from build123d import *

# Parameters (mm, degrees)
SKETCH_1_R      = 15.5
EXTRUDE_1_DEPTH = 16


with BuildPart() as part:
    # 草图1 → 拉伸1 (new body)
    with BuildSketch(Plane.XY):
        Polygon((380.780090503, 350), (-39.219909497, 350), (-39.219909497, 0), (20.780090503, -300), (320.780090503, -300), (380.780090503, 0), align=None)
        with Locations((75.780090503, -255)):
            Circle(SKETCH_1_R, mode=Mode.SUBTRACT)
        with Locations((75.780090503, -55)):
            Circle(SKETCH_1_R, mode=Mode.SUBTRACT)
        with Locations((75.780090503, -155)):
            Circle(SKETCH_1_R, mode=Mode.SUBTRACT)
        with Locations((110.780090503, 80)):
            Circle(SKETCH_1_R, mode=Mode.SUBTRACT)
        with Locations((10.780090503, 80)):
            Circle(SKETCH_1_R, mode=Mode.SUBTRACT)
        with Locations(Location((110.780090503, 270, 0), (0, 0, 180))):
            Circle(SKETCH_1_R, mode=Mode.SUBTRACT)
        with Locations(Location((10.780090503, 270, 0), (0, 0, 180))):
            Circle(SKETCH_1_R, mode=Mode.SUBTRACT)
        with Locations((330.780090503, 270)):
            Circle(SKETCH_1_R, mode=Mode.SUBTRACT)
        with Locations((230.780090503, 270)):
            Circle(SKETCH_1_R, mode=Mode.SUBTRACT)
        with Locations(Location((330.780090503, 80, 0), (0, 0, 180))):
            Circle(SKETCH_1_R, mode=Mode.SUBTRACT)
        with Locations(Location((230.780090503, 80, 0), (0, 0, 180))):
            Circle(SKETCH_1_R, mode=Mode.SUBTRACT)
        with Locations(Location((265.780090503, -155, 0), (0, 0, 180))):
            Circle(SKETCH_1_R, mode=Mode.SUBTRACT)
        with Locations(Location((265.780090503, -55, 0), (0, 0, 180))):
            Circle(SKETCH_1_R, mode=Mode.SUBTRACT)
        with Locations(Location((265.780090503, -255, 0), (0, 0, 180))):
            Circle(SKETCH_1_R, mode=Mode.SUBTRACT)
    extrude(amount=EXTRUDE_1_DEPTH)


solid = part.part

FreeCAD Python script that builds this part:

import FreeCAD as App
import Part
import Sketcher
from FreeCAD import Vector
Q = App.Units.Quantity

doc = App.newDocument("Part")
body = doc.addObject("PartDesign::Body", "Body")

sketch1 = body.newObject("Sketcher::SketchObject", "Sketch")
sketch1.AttachmentSupport = (doc.getObject("XY_Plane"), [""])
sketch1.MapMode = "FlatFace"
sketch1.addGeometry([
    Part.LineSegment(Vector(381, 350, 0), Vector(-39, 350, 0)),
    Part.LineSegment(Vector(-39, 350, 0), Vector(-39, 0, 0)),
    Part.LineSegment(Vector(-39, 0, 0), Vector(21, -300, 0)),
    Part.LineSegment(Vector(21, -300, 0), Vector(321, -300, 0)),
    Part.LineSegment(Vector(321, -300, 0), Vector(381, 0, 0)),
    Part.LineSegment(Vector(381, 0, 0), Vector(381, 350, 0)),
    Part.Circle(Vector(76, -255, 0), Vector(0, 0, 1), 16),
    Part.Circle(Vector(76, -155, 0), Vector(0, 0, 1), 16),
    Part.Circle(Vector(76, -55, 0), Vector(0, 0, 1), 16),
    Part.Circle(Vector(266, -255, 0), Vector(0, 0, 1), 16),
    Part.Circle(Vector(266, -155, 0), Vector(0, 0, 1), 16),
    Part.Circle(Vector(266, -55, 0), Vector(0, 0, 1), 16),
    Part.Circle(Vector(11, 80, 0), Vector(0, 0, 1), 16),
    Part.Circle(Vector(111, 80, 0), Vector(0, 0, 1), 16),
    Part.Circle(Vector(11, 270, 0), Vector(0, 0, 1), 16),
    Part.Circle(Vector(111, 270, 0), Vector(0, 0, 1), 16),
    Part.Circle(Vector(231, 80, 0), Vector(0, 0, 1), 16),
    Part.Circle(Vector(331, 80, 0), Vector(0, 0, 1), 16),
    Part.Circle(Vector(231, 270, 0), Vector(0, 0, 1), 16),
    Part.Circle(Vector(331, 270, 0), Vector(0, 0, 1), 16),
], False)
sketch1.addConstraint([
    Sketcher.Constraint("Coincident", 0, 2, 1, 1),
    Sketcher.Constraint("Coincident", 1, 2, 2, 1),
    Sketcher.Constraint("Coincident", 2, 2, 3, 1),
    Sketcher.Constraint("Coincident", 3, 2, 4, 1),
    Sketcher.Constraint("Coincident", 4, 2, 5, 1),
    Sketcher.Constraint("Coincident", 5, 2, 0, 1),
    Sketcher.Constraint("Horizontal", 0),
    Sketcher.Constraint("Vertical", 1),
    Sketcher.Constraint("Horizontal", 3),
    Sketcher.Constraint("Vertical", 5),
    Sketcher.Constraint("Equal", 6, 7),
    Sketcher.Constraint("Equal", 7, 8),
    Sketcher.Constraint("Equal", 8, 9),
    Sketcher.Constraint("Equal", 9, 10),
    Sketcher.Constraint("Equal", 10, 11),
    Sketcher.Constraint("Equal", 11, 12),
    Sketcher.Constraint("Equal", 12, 13),
    Sketcher.Constraint("Equal", 13, 14),
    Sketcher.Constraint("Equal", 14, 15),
    Sketcher.Constraint("Equal", 15, 16),
    Sketcher.Constraint("Equal", 16, 17),
    Sketcher.Constraint("Equal", 17, 18),
    Sketcher.Constraint("Equal", 18, 19),
    Sketcher.Constraint("PointOnObject", 1, 2, -1),
    Sketcher.Constraint("PointOnObject", 4, 2, -1),
    Sketcher.Constraint("Horizontal", 6, 3, 9, 3),
    Sketcher.Constraint("Horizontal", 7, 3, 10, 3),
    Sketcher.Constraint("Horizontal", 8, 3, 11, 3),
    Sketcher.Constraint("Horizontal", 12, 3, 13, 3),
    Sketcher.Constraint("Horizontal", 14, 3, 15, 3),
    Sketcher.Constraint("Horizontal", 13, 3, 16, 3),
    Sketcher.Constraint("Horizontal", 16, 3, 17, 3),
    Sketcher.Constraint("Horizontal", 15, 3, 18, 3),
    Sketcher.Constraint("Horizontal", 18, 3, 19, 3),
    Sketcher.Constraint("Vertical", 6, 3, 7, 3),
    Sketcher.Constraint("Vertical", 7, 3, 8, 3),
    Sketcher.Constraint("Vertical", 9, 3, 10, 3),
    Sketcher.Constraint("Vertical", 10, 3, 11, 3),
    Sketcher.Constraint("Vertical", 12, 3, 14, 3),
    Sketcher.Constraint("Vertical", 13, 3, 15, 3),
    Sketcher.Constraint("Vertical", 16, 3, 18, 3),
    Sketcher.Constraint("Vertical", 17, 3, 19, 3),
    Sketcher.Constraint("Equal", 2, 4),
    Sketcher.Constraint("Diameter", 6, Q("31 mm")),
    Sketcher.Constraint("DistanceX", 0, 2, 0, 1, Q("420 mm")),
    Sketcher.Constraint("DistanceX", 3, 1, 3, 2, Q("300 mm")),
    Sketcher.Constraint("DistanceY", 1, 2, 1, 1, Q("350 mm")),
    Sketcher.Constraint("DistanceY", 6, 3, -1, 1, Q("255 mm")),
    Sketcher.Constraint("DistanceY", 7, 3, -1, 1, Q("155 mm")),
    Sketcher.Constraint("DistanceY", 8, 3, -1, 1, Q("55 mm")),
    Sketcher.Constraint("DistanceY", -1, 1, 12, 3, Q("80 mm")),
    Sketcher.Constraint("DistanceY", -1, 1, 14, 3, Q("270 mm")),
    Sketcher.Constraint("DistanceY", 2, 2, -1, 1, Q("300 mm")),
    Sketcher.Constraint("DistanceX", 6, 3, 9, 3, Q("190 mm")),
    Sketcher.Constraint("DistanceX", 12, 3, 8, 3, Q("65 mm")),
    Sketcher.Constraint("DistanceX", 12, 3, 13, 3, Q("100 mm")),
    Sketcher.Constraint("DistanceX", 13, 3, 16, 3, Q("120 mm")),
    Sketcher.Constraint("DistanceX", 16, 3, 17, 3, Q("100 mm")),
    Sketcher.Constraint("DistanceX", 0, 2, 14, 3, Q("50 mm")),
    Sketcher.Constraint("DistanceX", -1, 1, 6, 3, Q("75.780091 mm")),
])
pad1 = body.newObject("PartDesign::Pad", "Pad")
pad1.Profile = sketch1
pad1.Length = 16

doc.recompute()
